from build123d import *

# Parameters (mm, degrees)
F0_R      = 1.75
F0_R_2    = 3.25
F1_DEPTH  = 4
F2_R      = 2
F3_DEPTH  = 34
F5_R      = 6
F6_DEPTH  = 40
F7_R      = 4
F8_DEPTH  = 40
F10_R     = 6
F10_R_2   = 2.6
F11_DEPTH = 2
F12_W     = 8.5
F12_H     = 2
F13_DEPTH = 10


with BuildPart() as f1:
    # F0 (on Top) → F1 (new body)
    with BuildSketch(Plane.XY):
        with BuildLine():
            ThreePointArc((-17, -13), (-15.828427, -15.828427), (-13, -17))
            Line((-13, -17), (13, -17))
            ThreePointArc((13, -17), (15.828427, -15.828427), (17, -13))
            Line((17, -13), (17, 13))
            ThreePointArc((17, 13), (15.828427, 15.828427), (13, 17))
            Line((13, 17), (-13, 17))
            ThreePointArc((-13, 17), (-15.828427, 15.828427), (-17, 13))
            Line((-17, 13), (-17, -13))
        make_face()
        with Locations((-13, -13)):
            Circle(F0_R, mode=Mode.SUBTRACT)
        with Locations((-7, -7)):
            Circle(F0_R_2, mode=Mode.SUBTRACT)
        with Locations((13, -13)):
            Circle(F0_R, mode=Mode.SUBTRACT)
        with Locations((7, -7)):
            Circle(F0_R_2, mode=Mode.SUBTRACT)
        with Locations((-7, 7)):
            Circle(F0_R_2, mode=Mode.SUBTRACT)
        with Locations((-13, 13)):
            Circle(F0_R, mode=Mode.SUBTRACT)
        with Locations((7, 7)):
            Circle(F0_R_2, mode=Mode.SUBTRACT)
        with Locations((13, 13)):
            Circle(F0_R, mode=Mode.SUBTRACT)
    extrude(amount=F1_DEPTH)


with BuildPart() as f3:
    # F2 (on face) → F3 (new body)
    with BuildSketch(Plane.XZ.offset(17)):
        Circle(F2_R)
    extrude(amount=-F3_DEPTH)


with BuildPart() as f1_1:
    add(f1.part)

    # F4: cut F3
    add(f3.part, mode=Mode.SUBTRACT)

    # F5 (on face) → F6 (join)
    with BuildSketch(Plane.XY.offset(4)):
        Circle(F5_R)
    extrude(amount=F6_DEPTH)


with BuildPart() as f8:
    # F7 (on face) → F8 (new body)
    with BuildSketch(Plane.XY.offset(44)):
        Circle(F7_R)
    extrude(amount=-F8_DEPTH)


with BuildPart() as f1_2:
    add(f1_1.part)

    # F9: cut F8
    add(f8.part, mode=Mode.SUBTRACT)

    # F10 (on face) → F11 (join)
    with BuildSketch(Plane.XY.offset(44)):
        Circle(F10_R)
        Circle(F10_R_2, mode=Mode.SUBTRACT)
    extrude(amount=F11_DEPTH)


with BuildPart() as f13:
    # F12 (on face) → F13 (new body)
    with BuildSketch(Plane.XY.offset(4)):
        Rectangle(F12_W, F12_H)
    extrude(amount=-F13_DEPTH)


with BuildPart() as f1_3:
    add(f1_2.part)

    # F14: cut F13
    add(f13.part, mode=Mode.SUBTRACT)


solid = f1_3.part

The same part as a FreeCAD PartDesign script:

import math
import FreeCAD as App
import Part
import Sketcher

V = App.Vector


def add_polygon(sketch, points):
    """Adds a closed chain of lines whose ends are joined by coincident constraints."""
    first, n = sketch.GeometryCount, len(points)
    for a, b in zip(points, points[1:] + points[:1]):
        sketch.addGeometry(Part.LineSegment(App.Vector(*a, 0), App.Vector(*b, 0)), False)
    for i in range(n):
        sketch.addConstraint(Sketcher.Constraint("Coincident", first + i, 2, first + (i + 1) % n, 1))

doc = App.newDocument("Part")
params = doc.addObject("Spreadsheet::Sheet", "Params")
for row, (alias, value) in enumerate([
    ("sketch1_radius", "4 mm"),
    ("sketch1_diameter", "3.5 mm"),
    ("sketch1_diameter2", "6.5 mm"),
    ("sketch1_width", "26 mm"),
    ("pad1_length", "4 mm"),
    ("sketch2_diameter", "4 mm"),
    ("pad2_length", "34 mm"),
    ("sketch3_diameter", "12 mm"),
    ("pad3_length", "40 mm"),
    ("sketch4_diameter", "8 mm"),
    ("pad4_length", "40 mm"),
    ("sketch5_diameter", "12 mm"),
    ("sketch5_diameter2", "5.2 mm"),
    ("pad5_length", "2 mm"),
    ("sketch6_height", "2 mm"),
    ("sketch6_width", "8.5 mm"),
    ("pad6_length", "10 mm"),
], start=1):
    params.set(f"A{row}", alias)
    params.set(f"B{row}", "=" + value)
    params.setAlias(f"B{row}", alias)

body = doc.addObject("PartDesign::Body", "Body")

# Sketch on XY plane
sketch1 = body.newObject("Sketcher::SketchObject", "Sketch")
sketch1.AttachmentSupport = (doc.getObject("XY_Plane"), [""])
sketch1.MapMode = "FlatFace"
sketch1.addGeometry([
    Part.ArcOfCircle(Part.Circle(V(-13, -13, 0), V(0, 0, 1), 4), math.radians(-180), math.radians(-90)),  # 0
    Part.LineSegment(V(-13, -17, 0), V(13, -17, 0)),  # 1
    Part.ArcOfCircle(Part.Circle(V(13, -13, 0), V(0, 0, 1), 4), math.radians(-90), math.radians(0)),  # 2
    Part.LineSegment(V(17, -13, 0), V(17, 13, 0)),  # 3
    Part.ArcOfCircle(Part.Circle(V(13, 13, 0), V(0, 0, 1), 4), math.radians(0), math.radians(90)),  # 4
    Part.LineSegment(V(13, 17, 0), V(-13, 17, 0)),  # 5
    Part.ArcOfCircle(Part.Circle(V(-13, 13, 0), V(0, 0, 1), 4), math.radians(90), math.radians(180)),  # 6
    Part.LineSegment(V(-17, 13, 0), V(-17, -13, 0)),  # 7
    Part.Circle(V(-13, -13, 0), V(0, 0, 1), 1.8),  # 8
    Part.Circle(V(-7, -7, 0), V(0, 0, 1), 3.2),  # 9
    Part.Circle(V(13, -13, 0), V(0, 0, 1), 1.8),  # 10
    Part.Circle(V(7, -7, 0), V(0, 0, 1), 3.2),  # 11
    Part.Circle(V(-7, 7, 0), V(0, 0, 1), 3.2),  # 12
    Part.Circle(V(-13, 13, 0), V(0, 0, 1), 1.8),  # 13
    Part.Circle(V(7, 7, 0), V(0, 0, 1), 3.2),  # 14
    Part.Circle(V(13, 13, 0), V(0, 0, 1), 1.8),  # 15
], False)
sketch1.addConstraint([
    Sketcher.Constraint("Tangent", 0, 2, 1, 1),
    Sketcher.Constraint("Tangent", 1, 2, 2, 1),
    Sketcher.Constraint("Tangent", 2, 2, 3, 1),
    Sketcher.Constraint("Tangent", 3, 2, 4, 1),
    Sketcher.Constraint("Tangent", 4, 2, 5, 1),
    Sketcher.Constraint("Tangent", 5, 2, 6, 1),
    Sketcher.Constraint("Tangent", 6, 2, 7, 1),
    Sketcher.Constraint("Tangent", 7, 2, 0, 1),
    Sketcher.Constraint("Horizontal", 1),
    Sketcher.Constraint("Vertical", 3),
    Sketcher.Constraint("Horizontal", 5),
    Sketcher.Constraint("Vertical", 7),
    Sketcher.Constraint("Coincident", 8, 3, 0, 3),
    Sketcher.Constraint("Coincident", 10, 3, 2, 3),
    Sketcher.Constraint("Coincident", 13, 3, 6, 3),
    Sketcher.Constraint("Coincident", 15, 3, 4, 3),
    Sketcher.Constraint("Equal", 0, 2),
    Sketcher.Constraint("Equal", 2, 4),
    Sketcher.Constraint("Equal", 4, 6),
    Sketcher.Constraint("Equal", 8, 10),
    Sketcher.Constraint("Equal", 9, 11),
    Sketcher.Constraint("Equal", 11, 12),
    Sketcher.Constraint("Equal", 10, 13),
    Sketcher.Constraint("Equal", 12, 14),
    Sketcher.Constraint("Equal", 13, 15),
    Sketcher.Constraint("Symmetric", 0, 3, 4, 3, -1, 1),
    Sketcher.Constraint("Symmetric", 11, 3, 12, 3, -1, 1),
    Sketcher.Constraint("Symmetric", 9, 3, 14, 3, -1, 1),
    Sketcher.Constraint("Symmetric", 9, 3, 11, 3, -2),
    Sketcher.Constraint("Equal", 5, 3),
    Sketcher.Constraint("Radius", 0, 4.0),
    Sketcher.Constraint("Diameter", 8, 3.5),
    Sketcher.Constraint("Diameter", 9, 6.5),
    Sketcher.Constraint("DistanceX", 1, 1, 1, 2, 26.0),
    Sketcher.Constraint("DistanceX", 9, 3, -1, 1, 7.0),
    Sketcher.Constraint("DistanceY", 9, 3, -1, 1, 7.0),
])
sketch1.setExpression("Constraints[30]", "Params.sketch1_radius")
sketch1.setExpression("Constraints[31]", "Params.sketch1_diameter")
sketch1.setExpression("Constraints[32]", "Params.sketch1_diameter2")
sketch1.setExpression("Constraints[33]", "Params.sketch1_width")
pad1 = body.newObject("PartDesign::Pad", "Pad")
pad1.Profile = sketch1
pad1.setExpression("Length", "Params.pad1_length")
body2 = doc.addObject("PartDesign::Body", "Body001")

# Sketch on XZ plane
sketch2 = body2.newObject("Sketcher::SketchObject", "Sketch001")
sketch2.AttachmentSupport = (doc.getObject("XZ_Plane001"), [""])
sketch2.MapMode = "FlatFace"
sketch2.AttachmentOffset = App.Placement(V(0, 0, 17), App.Rotation())
sketch2.addGeometry(Part.Circle(V(0, 0, 0), V(0, 0, 1), 2), False)
sketch2.addConstraint([
    Sketcher.Constraint("Coincident", 0, 3, -1, 1),
    Sketcher.Constraint("Diameter", 0, 4.0),
])
sketch2.setExpression("Constraints[1]", "Params.sketch2_diameter")
pad2 = body2.newObject("PartDesign::Pad", "Pad001")
pad2.Profile = sketch2
pad2.setExpression("Length", "Params.pad2_length")
pad2.Reversed = True
doc.recompute()

boolean = body.newObject("PartDesign::Boolean", "Boolean")
boolean.Type = "Cut"
boolean.addObjects([body2])

# Sketch on XY plane
sketch3 = body.newObject("Sketcher::SketchObject", "Sketch002")
sketch3.AttachmentSupport = (doc.getObject("XY_Plane"), [""])
sketch3.MapMode = "FlatFace"
sketch3.AttachmentOffset = App.Placement(V(0, 0, 4), App.Rotation())
sketch3.addGeometry(Part.Circle(V(0, 0, 0), V(0, 0, 1), 6), False)
sketch3.addConstraint([
    Sketcher.Constraint("Coincident", 0, 3, -1, 1),
    Sketcher.Constraint("Diameter", 0, 12.0),
])
sketch3.setExpression("Constraints[1]", "Params.sketch3_diameter")
pad3 = body.newObject("PartDesign::Pad", "Pad002")
pad3.Profile = sketch3
pad3.setExpression("Length", "Params.pad3_length")
body3 = doc.addObject("PartDesign::Body", "Body002")

# Sketch on XY plane
sketch4 = body3.newObject("Sketcher::SketchObject", "Sketch003")
sketch4.AttachmentSupport = (doc.getObject("XY_Plane002"), [""])
sketch4.MapMode = "FlatFace"
sketch4.AttachmentOffset = App.Placement(V(0, 0, 44), App.Rotation())
sketch4.addGeometry(Part.Circle(V(0, 0, 0), V(0, 0, 1), 4), False)
sketch4.addConstraint([
    Sketcher.Constraint("Coincident", 0, 3, -1, 1),
    Sketcher.Constraint("Diameter", 0, 8.0),
])
sketch4.setExpression("Constraints[1]", "Params.sketch4_diameter")
pad4 = body3.newObject("PartDesign::Pad", "Pad003")
pad4.Profile = sketch4
pad4.setExpression("Length", "Params.pad4_length")
pad4.Reversed = True
doc.recompute()

boolean2 = body.newObject("PartDesign::Boolean", "Boolean001")
boolean2.Type = "Cut"
boolean2.addObjects([body3])

# Sketch on XY plane
sketch5 = body.newObject("Sketcher::SketchObject", "Sketch004")
sketch5.AttachmentSupport = (doc.getObject("XY_Plane"), [""])
sketch5.MapMode = "FlatFace"
sketch5.AttachmentOffset = App.Placement(V(0, 0, 44), App.Rotation())
sketch5.addGeometry([
    Part.Circle(V(0, 0, 0), V(0, 0, 1), 6),
    Part.Circle(V(0, 0, 0), V(0, 0, 1), 2.6),
], False)
sketch5.addConstraint([
    Sketcher.Constraint("Coincident", 0, 3, -1, 1),
    Sketcher.Constraint("Coincident", 1, 3, -1, 1),
    Sketcher.Constraint("Diameter", 0, 12.0),
    Sketcher.Constraint("Diameter", 1, 5.2),
])
sketch5.setExpression("Constraints[2]", "Params.sketch5_diameter")
sketch5.setExpression("Constraints[3]", "Params.sketch5_diameter2")
pad5 = body.newObject("PartDesign::Pad", "Pad004")
pad5.Profile = sketch5
pad5.setExpression("Length", "Params.pad5_length")
body4 = doc.addObject("PartDesign::Body", "Body003")

# Sketch on XY plane
sketch6 = body4.newObject("Sketcher::SketchObject", "Sketch005")
sketch6.AttachmentSupport = (doc.getObject("XY_Plane003"), [""])
sketch6.MapMode = "FlatFace"
sketch6.AttachmentOffset = App.Placement(V(0, 0, 4), App.Rotation())
add_polygon(sketch6, [(-4.2, 1), (-4.2, -1), (4.2, -1), (4.2, 1)])  # lines 0-3
sketch6.addConstraint([
    Sketcher.Constraint("Vertical", 0),
    Sketcher.Constraint("Horizontal", 1),
    Sketcher.Constraint("Vertical", 2),
    Sketcher.Constraint("Horizontal", 3),
    Sketcher.Constraint("Symmetric", 0, 2, 2, 2, -1, 1),
    Sketcher.Constraint("DistanceY", 0, 2, 0, 1, 2.0),
    Sketcher.Constraint("DistanceX", 1, 1, 1, 2, 8.5),
])
sketch6.setExpression("Constraints[9]", "Params.sketch6_height")
sketch6.setExpression("Constraints[10]", "Params.sketch6_width")
pad6 = body4.newObject("PartDesign::Pad", "Pad005")
pad6.Profile = sketch6
pad6.setExpression("Length", "Params.pad6_length")
pad6.Reversed = True
doc.recompute()

boolean3 = body.newObject("PartDesign::Boolean", "Boolean002")
boolean3.Type = "Cut"
boolean3.addObjects([body4])

doc.recompute()
